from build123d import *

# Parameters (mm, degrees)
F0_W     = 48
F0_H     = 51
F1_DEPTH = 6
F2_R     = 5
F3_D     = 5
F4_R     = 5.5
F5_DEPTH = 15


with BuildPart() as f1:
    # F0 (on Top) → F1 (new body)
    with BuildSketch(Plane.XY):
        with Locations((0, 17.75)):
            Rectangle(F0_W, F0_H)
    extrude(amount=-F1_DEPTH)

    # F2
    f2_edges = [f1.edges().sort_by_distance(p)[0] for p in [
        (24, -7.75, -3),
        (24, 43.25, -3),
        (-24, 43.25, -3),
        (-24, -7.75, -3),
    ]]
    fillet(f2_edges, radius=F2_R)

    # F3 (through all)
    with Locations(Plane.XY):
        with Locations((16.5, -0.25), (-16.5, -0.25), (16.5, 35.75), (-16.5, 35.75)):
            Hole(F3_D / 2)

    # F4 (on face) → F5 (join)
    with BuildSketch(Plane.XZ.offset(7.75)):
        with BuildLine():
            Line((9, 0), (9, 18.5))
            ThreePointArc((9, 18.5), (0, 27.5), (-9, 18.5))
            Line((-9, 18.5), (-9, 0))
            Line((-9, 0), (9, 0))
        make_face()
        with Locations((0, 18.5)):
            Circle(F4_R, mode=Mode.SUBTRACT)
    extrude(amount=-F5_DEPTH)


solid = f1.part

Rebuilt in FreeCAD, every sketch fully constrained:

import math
import FreeCAD as App
import Part
import Sketcher

V = App.Vector


def edges_at(feature, points):
    """Names of the edges that pass closest to the given points."""
    edges = feature.Shape.Edges
    near = lambda p: min(range(len(edges)), key=lambda i: edges[i].distToShape(Part.Vertex(*p))[0])
    return sorted({f"Edge{near(p) + 1}" for p in points})

doc = App.newDocument("Part")
body = doc.addObject("PartDesign::Body", "Body")

sketch1 = body.newObject("Sketcher::SketchObject", "Sketch")
sketch1.AttachmentSupport = (doc.getObject("XY_Plane"), [""])
sketch1.MapMode = "FlatFace"
sketch1.addGeometry(Part.LineSegment(V(-24, 43.25, 0), V(-24, -7.75, 0)), False)
sketch1.addGeometry(Part.LineSegment(V(-24, -7.75, 0), V(24, -7.75, 0)), False)
sketch1.addGeometry(Part.LineSegment(V(24, -7.75, 0), V(24, 43.25, 0)), False)
sketch1.addGeometry(Part.LineSegment(V(24, 43.25, 0), V(-24, 43.25, 0)), False)
sketch1.addConstraint(Sketcher.Constraint("Coincident", 0, 2, 1, 1))
sketch1.addConstraint(Sketcher.Constraint("Coincident", 1, 2, 2, 1))
sketch1.addConstraint(Sketcher.Constraint("Coincident", 2, 2, 3, 1))
sketch1.addConstraint(Sketcher.Constraint("Coincident", 3, 2, 0, 1))
sketch1.addConstraint(Sketcher.Constraint("Vertical", 0))
sketch1.addConstraint(Sketcher.Constraint("Horizontal", 1))
sketch1.addConstraint(Sketcher.Constraint("Vertical", 2))
sketch1.addConstraint(Sketcher.Constraint("Horizontal", 3))
sketch1.addConstraint(Sketcher.Constraint("DistanceX", 1, 1, 1, 2, 48.0))
sketch1.addConstraint(Sketcher.Constraint("DistanceY", 0, 2, 0, 1, 51.0))
sketch1.addConstraint(Sketcher.Constraint("DistanceX", 0, 2, -1, 1, 24.0))
sketch1.addConstraint(Sketcher.Constraint("DistanceY", 0, 2, -1, 1, 7.75))
pad1 = body.newObject("PartDesign::Pad", "Pad")
pad1.Profile = sketch1
pad1.Length = 6
pad1.Reversed = True
doc.recompute()

fillet = body.newObject("PartDesign::Fillet", "Fillet")
fillet.Base = (pad1, edges_at(pad1, [
    (24, -7.75, -3),
    (24, 43.25, -3),
    (-24, 43.25, -3),
    (-24, -7.75, -3),
]))
fillet.Radius = 5

sketch2 = body.newObject("Sketcher::SketchObject", "Sketch001")
sketch2.AttachmentSupport = (doc.getObject("XY_Plane"), [""])
sketch2.MapMode = "FlatFace"
sketch2.addGeometry(Part.Circle(V(16.5, -0.25, 0), V(0, 0, 1), 2.5), False)
sketch2.addGeometry(Part.Circle(V(-16.5, -0.25, 0), V(0, 0, 1), 2.5), False)
sketch2.addGeometry(Part.Circle(V(16.5, 35.75, 0), V(0, 0, 1), 2.5), False)
sketch2.addGeometry(Part.Circle(V(-16.5, 35.75, 0), V(0, 0, 1), 2.5), False)
sketch2.addConstraint(Sketcher.Constraint("Equal", 0, 1))
sketch2.addConstraint(Sketcher.Constraint("Equal", 1, 2))
sketch2.addConstraint(Sketcher.Constraint("Equal", 2, 3))
sketch2.addConstraint(Sketcher.Constraint("Symmetric", 0, 3, 1, 3, -2))
sketch2.addConstraint(Sketcher.Constraint("Symmetric", 2, 3, 3, 3, -2))
sketch2.addConstraint(Sketcher.Constraint("Vertical", 0, 3, 2, 3))
sketch2.addConstraint(Sketcher.Constraint("Diameter", 0, 5.0))
sketch2.addConstraint(Sketcher.Constraint("DistanceX", 1, 3, 0, 3, 33.0))
sketch2.addConstraint(Sketcher.Constraint("DistanceY", 0, 3, 2, 3, 36.0))
sketch2.addConstraint(Sketcher.Constraint("DistanceY", 0, 3, -1, 1, 0.25))
doc.recompute()
hole = body.newObject("PartDesign::Hole", "Hole")
hole.Profile = sketch2
hole.ThreadType = "None"
hole.Diameter = 5
hole.DepthType = "ThroughAll"

sketch3 = body.newObject("Sketcher::SketchObject", "Sketch002")
sketch3.AttachmentSupport = (doc.getObject("XZ_Plane"), [""])
sketch3.MapMode = "FlatFace"
sketch3.AttachmentOffset = App.Placement(V(0, 0, 7.75), App.Rotation())
sketch3.addGeometry(Part.LineSegment(V(9, 0, 0), V(9, 18.5, 0)), False)
sketch3.addGeometry(Part.ArcOfCircle(Part.Circle(V(0, 18.5, 0), V(0, 0, 1), 9), math.radians(0), math.radians(180)), False)
sketch3.addGeometry(Part.LineSegment(V(-9, 18.5, 0), V(-9, 0, 0)), False)
sketch3.addGeometry(Part.LineSegment(V(-9, 0, 0), V(9, 0, 0)), False)
sketch3.addGeometry(Part.Circle(V(0, 18.5, 0), V(0, 0, 1), 5.5), False)
sketch3.addConstraint(Sketcher.Constraint("Tangent", 0, 2, 1, 1))
sketch3.addConstraint(Sketcher.Constraint("Tangent", 1, 2, 2, 1))
sketch3.addConstraint(Sketcher.Constraint("Coincident", 2, 2, 3, 1))
sketch3.addConstraint(Sketcher.Constraint("Coincident", 3, 2, 0, 1))
sketch3.addConstraint(Sketcher.Constraint("Vertical", 0))
sketch3.addConstraint(Sketcher.Constraint("Vertical", 2))
sketch3.addConstraint(Sketcher.Constraint("Horizontal", 3))
sketch3.addConstraint(Sketcher.Constraint("Coincident", 4, 3, 1, 3))
sketch3.addConstraint(Sketcher.Constraint("Symmetric", 2, 2, 3, 2, -1, 1))
sketch3.addConstraint(Sketcher.Constraint("Diameter", 4, 11.0))
sketch3.addConstraint(Sketcher.Constraint("Radius", 1, 9.0))
sketch3.addConstraint(Sketcher.Constraint("DistanceY", 0, 1, 0, 2, 18.5))
pad2 = body.newObject("PartDesign::Pad", "Pad001")
pad2.Profile = sketch3
pad2.Length = 15
pad2.Reversed = True

doc.recompute()
